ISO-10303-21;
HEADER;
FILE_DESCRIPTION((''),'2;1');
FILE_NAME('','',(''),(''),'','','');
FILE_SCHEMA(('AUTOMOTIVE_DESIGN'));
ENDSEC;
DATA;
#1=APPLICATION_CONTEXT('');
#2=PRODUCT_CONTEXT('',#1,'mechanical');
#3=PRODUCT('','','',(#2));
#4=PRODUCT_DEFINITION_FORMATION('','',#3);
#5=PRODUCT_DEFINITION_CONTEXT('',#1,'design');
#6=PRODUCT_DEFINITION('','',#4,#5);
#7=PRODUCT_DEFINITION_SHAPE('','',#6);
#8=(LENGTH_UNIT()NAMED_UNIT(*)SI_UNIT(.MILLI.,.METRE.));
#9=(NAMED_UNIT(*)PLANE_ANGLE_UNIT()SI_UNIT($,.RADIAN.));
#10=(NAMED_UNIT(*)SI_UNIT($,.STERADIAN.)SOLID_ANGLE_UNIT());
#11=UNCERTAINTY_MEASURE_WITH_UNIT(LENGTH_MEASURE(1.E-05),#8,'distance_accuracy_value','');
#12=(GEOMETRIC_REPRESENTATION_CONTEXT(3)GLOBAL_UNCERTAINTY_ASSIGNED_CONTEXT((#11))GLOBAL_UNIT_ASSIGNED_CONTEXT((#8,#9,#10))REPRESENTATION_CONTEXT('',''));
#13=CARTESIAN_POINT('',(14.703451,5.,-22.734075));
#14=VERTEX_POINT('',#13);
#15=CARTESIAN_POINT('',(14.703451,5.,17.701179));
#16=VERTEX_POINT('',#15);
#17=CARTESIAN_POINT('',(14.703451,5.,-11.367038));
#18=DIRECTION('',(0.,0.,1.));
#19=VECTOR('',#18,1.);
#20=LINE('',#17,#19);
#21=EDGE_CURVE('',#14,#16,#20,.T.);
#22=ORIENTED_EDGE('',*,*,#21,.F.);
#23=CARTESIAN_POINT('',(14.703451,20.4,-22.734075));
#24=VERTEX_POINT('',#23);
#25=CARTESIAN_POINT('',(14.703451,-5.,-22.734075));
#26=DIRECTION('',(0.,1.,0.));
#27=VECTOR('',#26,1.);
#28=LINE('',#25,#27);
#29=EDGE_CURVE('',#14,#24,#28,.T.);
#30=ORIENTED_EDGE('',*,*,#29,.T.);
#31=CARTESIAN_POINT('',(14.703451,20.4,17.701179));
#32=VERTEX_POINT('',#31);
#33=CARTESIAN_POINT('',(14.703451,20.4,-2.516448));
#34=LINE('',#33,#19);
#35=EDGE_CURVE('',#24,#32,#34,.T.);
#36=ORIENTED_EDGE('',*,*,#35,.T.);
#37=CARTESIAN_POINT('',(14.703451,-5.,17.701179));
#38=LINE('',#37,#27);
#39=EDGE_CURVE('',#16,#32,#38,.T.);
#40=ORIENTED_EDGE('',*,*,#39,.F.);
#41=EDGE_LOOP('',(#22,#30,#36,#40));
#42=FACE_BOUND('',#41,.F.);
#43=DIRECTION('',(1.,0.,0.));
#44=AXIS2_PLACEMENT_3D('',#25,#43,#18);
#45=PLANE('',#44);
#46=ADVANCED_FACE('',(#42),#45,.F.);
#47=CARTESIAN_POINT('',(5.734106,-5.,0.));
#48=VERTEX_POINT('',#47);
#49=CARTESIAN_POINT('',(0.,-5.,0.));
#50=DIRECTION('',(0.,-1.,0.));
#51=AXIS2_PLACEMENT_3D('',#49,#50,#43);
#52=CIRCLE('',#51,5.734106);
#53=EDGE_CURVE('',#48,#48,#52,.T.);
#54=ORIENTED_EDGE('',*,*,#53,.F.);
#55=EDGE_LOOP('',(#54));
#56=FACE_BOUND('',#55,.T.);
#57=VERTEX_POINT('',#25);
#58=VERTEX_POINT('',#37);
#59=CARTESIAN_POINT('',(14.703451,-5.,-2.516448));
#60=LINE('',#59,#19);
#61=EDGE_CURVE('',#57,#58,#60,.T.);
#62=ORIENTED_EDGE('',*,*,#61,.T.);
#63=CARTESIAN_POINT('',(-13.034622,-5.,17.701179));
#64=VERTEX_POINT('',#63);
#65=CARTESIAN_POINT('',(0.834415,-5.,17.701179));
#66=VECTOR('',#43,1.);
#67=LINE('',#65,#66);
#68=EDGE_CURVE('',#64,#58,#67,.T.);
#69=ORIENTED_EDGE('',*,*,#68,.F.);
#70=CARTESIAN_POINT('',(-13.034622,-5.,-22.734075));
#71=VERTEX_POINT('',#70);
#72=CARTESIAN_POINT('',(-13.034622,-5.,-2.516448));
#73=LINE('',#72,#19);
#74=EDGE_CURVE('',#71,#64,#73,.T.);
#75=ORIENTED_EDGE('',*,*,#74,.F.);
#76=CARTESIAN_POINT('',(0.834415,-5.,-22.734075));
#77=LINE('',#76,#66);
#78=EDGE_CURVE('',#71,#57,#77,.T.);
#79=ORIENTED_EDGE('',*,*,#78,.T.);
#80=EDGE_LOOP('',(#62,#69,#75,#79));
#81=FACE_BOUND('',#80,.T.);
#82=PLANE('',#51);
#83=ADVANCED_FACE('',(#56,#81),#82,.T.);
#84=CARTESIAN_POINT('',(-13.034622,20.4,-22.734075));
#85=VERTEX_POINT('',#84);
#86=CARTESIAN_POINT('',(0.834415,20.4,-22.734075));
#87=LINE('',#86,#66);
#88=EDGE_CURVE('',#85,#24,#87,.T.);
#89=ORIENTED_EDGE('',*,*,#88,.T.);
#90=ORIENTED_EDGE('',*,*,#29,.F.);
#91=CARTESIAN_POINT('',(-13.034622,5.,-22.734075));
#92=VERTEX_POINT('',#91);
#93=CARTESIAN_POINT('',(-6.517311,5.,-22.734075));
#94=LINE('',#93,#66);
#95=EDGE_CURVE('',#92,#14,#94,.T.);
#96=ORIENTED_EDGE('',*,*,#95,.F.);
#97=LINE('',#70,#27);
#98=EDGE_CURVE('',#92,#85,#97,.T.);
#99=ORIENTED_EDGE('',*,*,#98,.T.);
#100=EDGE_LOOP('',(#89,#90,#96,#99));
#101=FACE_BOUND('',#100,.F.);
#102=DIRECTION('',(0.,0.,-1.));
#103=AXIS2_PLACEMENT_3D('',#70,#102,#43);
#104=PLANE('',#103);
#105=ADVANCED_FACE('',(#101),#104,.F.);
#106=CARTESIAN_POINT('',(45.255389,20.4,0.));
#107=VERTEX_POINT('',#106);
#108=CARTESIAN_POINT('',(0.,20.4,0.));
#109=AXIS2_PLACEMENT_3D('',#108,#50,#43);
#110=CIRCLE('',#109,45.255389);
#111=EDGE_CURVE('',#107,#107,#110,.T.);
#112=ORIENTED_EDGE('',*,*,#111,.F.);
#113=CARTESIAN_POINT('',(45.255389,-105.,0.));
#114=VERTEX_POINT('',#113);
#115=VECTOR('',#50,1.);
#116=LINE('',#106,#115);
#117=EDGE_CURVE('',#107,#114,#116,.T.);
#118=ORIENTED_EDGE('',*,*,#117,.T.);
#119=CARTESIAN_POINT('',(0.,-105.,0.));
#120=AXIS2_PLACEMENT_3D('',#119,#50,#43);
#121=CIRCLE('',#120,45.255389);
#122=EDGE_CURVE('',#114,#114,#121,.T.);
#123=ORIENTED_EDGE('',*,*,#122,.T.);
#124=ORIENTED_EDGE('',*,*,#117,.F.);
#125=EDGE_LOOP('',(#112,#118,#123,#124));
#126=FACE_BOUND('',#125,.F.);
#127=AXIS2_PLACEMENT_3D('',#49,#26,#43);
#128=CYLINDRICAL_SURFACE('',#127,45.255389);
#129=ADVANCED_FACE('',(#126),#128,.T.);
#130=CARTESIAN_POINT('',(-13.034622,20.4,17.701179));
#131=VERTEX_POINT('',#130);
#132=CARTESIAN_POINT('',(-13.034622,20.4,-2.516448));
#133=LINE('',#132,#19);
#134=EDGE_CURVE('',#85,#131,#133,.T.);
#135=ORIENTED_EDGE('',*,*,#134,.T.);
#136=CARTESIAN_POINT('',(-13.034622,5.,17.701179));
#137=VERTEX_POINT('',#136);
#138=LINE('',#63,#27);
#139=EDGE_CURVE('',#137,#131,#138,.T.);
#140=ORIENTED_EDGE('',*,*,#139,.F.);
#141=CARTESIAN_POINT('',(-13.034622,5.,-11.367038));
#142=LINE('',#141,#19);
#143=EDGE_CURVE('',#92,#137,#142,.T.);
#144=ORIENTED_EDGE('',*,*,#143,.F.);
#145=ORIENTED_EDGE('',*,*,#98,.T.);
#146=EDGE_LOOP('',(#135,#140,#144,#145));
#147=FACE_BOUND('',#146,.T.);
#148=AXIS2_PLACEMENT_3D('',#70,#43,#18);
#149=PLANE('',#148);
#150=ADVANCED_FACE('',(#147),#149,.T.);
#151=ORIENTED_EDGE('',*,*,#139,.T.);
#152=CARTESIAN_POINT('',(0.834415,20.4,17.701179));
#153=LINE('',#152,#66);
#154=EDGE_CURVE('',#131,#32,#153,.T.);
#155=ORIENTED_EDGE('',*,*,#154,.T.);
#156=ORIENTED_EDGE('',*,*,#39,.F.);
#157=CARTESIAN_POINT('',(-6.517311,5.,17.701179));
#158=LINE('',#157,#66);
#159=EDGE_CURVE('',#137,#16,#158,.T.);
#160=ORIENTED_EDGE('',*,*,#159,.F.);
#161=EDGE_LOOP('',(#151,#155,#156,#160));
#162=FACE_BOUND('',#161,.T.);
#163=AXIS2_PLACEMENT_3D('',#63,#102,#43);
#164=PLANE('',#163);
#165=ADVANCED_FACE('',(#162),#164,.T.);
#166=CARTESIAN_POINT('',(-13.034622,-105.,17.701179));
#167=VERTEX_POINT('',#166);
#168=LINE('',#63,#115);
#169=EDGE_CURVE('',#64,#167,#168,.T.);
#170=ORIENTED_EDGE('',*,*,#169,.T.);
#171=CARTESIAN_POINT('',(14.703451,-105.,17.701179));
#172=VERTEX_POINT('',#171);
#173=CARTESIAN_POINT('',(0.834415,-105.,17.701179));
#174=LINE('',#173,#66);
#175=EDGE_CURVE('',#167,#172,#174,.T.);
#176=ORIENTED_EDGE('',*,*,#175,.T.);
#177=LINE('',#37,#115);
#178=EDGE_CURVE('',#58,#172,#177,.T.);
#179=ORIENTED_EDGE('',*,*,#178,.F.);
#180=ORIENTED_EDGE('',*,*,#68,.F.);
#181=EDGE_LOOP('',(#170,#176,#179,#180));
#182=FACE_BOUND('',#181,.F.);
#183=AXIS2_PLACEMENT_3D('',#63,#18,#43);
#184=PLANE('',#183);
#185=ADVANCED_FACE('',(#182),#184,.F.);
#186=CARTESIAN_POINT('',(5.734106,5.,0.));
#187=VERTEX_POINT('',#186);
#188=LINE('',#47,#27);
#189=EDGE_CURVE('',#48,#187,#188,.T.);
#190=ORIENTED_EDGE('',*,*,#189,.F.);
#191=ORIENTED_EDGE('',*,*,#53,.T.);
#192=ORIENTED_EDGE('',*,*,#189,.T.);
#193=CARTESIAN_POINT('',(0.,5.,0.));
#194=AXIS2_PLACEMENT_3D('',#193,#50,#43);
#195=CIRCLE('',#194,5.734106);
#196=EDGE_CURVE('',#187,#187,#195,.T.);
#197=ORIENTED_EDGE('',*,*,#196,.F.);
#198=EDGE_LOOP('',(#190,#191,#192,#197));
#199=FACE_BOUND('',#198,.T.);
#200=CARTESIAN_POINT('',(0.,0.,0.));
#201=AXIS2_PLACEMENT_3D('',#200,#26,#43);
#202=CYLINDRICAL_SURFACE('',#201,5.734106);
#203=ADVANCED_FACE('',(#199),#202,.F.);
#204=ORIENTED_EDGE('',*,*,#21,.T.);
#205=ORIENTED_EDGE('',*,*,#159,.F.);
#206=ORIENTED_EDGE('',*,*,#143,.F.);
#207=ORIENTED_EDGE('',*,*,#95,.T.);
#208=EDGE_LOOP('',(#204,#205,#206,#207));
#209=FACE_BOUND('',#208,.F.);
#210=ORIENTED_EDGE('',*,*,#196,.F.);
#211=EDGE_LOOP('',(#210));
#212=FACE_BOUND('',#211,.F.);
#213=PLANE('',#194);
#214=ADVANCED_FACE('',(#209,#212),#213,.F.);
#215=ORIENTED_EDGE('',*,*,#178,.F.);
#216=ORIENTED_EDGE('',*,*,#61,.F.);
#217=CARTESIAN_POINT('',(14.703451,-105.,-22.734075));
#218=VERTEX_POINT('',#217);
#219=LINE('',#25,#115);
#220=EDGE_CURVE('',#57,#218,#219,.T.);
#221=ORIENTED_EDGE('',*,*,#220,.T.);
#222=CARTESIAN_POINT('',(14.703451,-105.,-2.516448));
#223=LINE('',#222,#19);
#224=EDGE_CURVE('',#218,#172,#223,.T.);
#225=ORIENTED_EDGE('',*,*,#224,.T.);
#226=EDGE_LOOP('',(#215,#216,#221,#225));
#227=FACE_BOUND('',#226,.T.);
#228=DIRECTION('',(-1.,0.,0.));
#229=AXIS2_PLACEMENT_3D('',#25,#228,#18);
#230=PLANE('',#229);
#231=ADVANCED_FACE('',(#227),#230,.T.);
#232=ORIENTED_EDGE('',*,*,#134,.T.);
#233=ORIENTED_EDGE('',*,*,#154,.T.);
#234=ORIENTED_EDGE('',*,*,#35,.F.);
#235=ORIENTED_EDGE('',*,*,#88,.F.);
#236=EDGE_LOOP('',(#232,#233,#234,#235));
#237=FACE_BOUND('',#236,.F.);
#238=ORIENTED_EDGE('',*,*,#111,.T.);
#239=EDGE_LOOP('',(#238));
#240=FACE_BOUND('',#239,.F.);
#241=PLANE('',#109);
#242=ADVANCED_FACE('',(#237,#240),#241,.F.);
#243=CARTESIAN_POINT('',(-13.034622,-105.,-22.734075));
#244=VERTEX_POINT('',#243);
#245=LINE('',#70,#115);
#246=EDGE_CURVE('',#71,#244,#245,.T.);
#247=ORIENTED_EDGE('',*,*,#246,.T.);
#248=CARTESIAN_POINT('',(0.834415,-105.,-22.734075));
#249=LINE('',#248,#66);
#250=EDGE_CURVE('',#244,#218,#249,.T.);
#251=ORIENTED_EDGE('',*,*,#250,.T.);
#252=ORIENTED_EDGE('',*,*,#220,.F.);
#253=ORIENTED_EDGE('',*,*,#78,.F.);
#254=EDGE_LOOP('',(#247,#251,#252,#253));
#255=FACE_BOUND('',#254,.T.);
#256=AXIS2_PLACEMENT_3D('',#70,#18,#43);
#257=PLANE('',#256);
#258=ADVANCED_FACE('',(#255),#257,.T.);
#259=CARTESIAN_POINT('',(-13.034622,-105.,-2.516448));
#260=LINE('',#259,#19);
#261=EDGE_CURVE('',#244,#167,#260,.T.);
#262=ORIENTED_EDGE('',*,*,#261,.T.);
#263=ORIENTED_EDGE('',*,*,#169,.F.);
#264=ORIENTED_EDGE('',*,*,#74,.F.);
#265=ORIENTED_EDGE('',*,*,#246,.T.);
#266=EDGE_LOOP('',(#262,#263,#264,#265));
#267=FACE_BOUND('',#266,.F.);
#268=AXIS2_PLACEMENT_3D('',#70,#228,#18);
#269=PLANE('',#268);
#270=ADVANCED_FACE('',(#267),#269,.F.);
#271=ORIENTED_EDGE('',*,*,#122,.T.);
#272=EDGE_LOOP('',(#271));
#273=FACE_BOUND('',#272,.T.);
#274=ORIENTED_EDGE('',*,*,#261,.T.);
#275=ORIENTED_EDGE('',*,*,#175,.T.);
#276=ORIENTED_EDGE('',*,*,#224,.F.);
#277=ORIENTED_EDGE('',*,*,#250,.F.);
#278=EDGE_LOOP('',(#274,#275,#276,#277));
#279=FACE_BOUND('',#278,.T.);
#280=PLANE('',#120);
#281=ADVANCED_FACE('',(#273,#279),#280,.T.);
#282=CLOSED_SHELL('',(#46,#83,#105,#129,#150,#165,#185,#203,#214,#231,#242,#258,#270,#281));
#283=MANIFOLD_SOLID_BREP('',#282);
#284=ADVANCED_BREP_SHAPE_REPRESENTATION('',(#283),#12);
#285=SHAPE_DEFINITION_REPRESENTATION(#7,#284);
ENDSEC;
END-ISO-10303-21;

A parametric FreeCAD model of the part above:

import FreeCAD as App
import Part
import Sketcher

doc = App.newDocument("Part")
body = doc.addObject("PartDesign::Body", "Body")

# Sketch on XZ plane
sketch1 = body.newObject("Sketcher::SketchObject", "Sketch")
sketch1.AttachmentSupport = (doc.getObject("XZ_Plane"), [""])
sketch1.MapMode = "FlatFace"
sketch1.addGeometry([
    Part.Circle(App.Vector(0, 0, 0), App.Vector(0, 0, 1), 45),
    Part.Circle(App.Vector(0, 0, 0), App.Vector(0, 0, 1), 6),
], False)
sketch1.addConstraint([
    Sketcher.Constraint("Coincident", 0, 3, -1, 1),
    Sketcher.Constraint("Coincident", 1, 3, -1, 1),
    Sketcher.Constraint("Diameter", 0, 90.510778),
    Sketcher.Constraint("Diameter", 1, 11.468212),
])
pad1 = body.newObject("PartDesign::Pad", "Pad")
pad1.Profile = sketch1
pad1.Length = 10
pad1.Midplane = True

# Sketch on XZ plane
sketch2 = body.newObject("Sketcher::SketchObject", "Sketch001")
sketch2.AttachmentSupport = (doc.getObject("XZ_Plane"), [""])
sketch2.MapMode = "FlatFace"
sketch2.AttachmentOffset = App.Placement(App.Vector(0, 0, 5), App.Rotation())
sketch2.addGeometry([
    Part.Circle(App.Vector(0, 0, 0), App.Vector(0, 0, 1), 45),  # 0
    Part.LineSegment(App.Vector(15, -23, 0), App.Vector(-13, -23, 0)),  # 1
    Part.LineSegment(App.Vector(-13, -23, 0), App.Vector(-13, 18, 0)),  # 2
    Part.LineSegment(App.Vector(-13, 18, 0), App.Vector(15, 18, 0)),  # 3
    Part.LineSegment(App.Vector(15, 18, 0), App.Vector(15, -23, 0)),  # 4
], False)
sketch2.addConstraint([
    Sketcher.Constraint("Coincident", 1, 2, 2, 1),
    Sketcher.Constraint("Coincident", 2, 2, 3, 1),
    Sketcher.Constraint("Coincident", 3, 2, 4, 1),
    Sketcher.Constraint("Coincident", 4, 2, 1, 1),
    Sketcher.Constraint("Horizontal", 1),
    Sketcher.Constraint("Vertical", 2),
    Sketcher.Constraint("Horizontal", 3),
    Sketcher.Constraint("Vertical", 4),
    Sketcher.Constraint("Coincident", 0, 3, -1, 1),
    Sketcher.Constraint("Diameter", 0, 90.510778),
    Sketcher.Constraint("DistanceX", 1, 2, 1, 1, 27.738073),
    Sketcher.Constraint("DistanceY", 2, 1, 2, 2, 40.435255),
    Sketcher.Constraint("DistanceX", 1, 2, -1, 1, 13.034622),
    Sketcher.Constraint("DistanceY", -1, 1, 2, 2, 17.701179),
])
pad2 = body.newObject("PartDesign::Pad", "Pad001")
pad2.Profile = sketch2
pad2.Type = "TwoLengths"
pad2.Length = 100
pad2.Length2 = 25.4

doc.recompute()
